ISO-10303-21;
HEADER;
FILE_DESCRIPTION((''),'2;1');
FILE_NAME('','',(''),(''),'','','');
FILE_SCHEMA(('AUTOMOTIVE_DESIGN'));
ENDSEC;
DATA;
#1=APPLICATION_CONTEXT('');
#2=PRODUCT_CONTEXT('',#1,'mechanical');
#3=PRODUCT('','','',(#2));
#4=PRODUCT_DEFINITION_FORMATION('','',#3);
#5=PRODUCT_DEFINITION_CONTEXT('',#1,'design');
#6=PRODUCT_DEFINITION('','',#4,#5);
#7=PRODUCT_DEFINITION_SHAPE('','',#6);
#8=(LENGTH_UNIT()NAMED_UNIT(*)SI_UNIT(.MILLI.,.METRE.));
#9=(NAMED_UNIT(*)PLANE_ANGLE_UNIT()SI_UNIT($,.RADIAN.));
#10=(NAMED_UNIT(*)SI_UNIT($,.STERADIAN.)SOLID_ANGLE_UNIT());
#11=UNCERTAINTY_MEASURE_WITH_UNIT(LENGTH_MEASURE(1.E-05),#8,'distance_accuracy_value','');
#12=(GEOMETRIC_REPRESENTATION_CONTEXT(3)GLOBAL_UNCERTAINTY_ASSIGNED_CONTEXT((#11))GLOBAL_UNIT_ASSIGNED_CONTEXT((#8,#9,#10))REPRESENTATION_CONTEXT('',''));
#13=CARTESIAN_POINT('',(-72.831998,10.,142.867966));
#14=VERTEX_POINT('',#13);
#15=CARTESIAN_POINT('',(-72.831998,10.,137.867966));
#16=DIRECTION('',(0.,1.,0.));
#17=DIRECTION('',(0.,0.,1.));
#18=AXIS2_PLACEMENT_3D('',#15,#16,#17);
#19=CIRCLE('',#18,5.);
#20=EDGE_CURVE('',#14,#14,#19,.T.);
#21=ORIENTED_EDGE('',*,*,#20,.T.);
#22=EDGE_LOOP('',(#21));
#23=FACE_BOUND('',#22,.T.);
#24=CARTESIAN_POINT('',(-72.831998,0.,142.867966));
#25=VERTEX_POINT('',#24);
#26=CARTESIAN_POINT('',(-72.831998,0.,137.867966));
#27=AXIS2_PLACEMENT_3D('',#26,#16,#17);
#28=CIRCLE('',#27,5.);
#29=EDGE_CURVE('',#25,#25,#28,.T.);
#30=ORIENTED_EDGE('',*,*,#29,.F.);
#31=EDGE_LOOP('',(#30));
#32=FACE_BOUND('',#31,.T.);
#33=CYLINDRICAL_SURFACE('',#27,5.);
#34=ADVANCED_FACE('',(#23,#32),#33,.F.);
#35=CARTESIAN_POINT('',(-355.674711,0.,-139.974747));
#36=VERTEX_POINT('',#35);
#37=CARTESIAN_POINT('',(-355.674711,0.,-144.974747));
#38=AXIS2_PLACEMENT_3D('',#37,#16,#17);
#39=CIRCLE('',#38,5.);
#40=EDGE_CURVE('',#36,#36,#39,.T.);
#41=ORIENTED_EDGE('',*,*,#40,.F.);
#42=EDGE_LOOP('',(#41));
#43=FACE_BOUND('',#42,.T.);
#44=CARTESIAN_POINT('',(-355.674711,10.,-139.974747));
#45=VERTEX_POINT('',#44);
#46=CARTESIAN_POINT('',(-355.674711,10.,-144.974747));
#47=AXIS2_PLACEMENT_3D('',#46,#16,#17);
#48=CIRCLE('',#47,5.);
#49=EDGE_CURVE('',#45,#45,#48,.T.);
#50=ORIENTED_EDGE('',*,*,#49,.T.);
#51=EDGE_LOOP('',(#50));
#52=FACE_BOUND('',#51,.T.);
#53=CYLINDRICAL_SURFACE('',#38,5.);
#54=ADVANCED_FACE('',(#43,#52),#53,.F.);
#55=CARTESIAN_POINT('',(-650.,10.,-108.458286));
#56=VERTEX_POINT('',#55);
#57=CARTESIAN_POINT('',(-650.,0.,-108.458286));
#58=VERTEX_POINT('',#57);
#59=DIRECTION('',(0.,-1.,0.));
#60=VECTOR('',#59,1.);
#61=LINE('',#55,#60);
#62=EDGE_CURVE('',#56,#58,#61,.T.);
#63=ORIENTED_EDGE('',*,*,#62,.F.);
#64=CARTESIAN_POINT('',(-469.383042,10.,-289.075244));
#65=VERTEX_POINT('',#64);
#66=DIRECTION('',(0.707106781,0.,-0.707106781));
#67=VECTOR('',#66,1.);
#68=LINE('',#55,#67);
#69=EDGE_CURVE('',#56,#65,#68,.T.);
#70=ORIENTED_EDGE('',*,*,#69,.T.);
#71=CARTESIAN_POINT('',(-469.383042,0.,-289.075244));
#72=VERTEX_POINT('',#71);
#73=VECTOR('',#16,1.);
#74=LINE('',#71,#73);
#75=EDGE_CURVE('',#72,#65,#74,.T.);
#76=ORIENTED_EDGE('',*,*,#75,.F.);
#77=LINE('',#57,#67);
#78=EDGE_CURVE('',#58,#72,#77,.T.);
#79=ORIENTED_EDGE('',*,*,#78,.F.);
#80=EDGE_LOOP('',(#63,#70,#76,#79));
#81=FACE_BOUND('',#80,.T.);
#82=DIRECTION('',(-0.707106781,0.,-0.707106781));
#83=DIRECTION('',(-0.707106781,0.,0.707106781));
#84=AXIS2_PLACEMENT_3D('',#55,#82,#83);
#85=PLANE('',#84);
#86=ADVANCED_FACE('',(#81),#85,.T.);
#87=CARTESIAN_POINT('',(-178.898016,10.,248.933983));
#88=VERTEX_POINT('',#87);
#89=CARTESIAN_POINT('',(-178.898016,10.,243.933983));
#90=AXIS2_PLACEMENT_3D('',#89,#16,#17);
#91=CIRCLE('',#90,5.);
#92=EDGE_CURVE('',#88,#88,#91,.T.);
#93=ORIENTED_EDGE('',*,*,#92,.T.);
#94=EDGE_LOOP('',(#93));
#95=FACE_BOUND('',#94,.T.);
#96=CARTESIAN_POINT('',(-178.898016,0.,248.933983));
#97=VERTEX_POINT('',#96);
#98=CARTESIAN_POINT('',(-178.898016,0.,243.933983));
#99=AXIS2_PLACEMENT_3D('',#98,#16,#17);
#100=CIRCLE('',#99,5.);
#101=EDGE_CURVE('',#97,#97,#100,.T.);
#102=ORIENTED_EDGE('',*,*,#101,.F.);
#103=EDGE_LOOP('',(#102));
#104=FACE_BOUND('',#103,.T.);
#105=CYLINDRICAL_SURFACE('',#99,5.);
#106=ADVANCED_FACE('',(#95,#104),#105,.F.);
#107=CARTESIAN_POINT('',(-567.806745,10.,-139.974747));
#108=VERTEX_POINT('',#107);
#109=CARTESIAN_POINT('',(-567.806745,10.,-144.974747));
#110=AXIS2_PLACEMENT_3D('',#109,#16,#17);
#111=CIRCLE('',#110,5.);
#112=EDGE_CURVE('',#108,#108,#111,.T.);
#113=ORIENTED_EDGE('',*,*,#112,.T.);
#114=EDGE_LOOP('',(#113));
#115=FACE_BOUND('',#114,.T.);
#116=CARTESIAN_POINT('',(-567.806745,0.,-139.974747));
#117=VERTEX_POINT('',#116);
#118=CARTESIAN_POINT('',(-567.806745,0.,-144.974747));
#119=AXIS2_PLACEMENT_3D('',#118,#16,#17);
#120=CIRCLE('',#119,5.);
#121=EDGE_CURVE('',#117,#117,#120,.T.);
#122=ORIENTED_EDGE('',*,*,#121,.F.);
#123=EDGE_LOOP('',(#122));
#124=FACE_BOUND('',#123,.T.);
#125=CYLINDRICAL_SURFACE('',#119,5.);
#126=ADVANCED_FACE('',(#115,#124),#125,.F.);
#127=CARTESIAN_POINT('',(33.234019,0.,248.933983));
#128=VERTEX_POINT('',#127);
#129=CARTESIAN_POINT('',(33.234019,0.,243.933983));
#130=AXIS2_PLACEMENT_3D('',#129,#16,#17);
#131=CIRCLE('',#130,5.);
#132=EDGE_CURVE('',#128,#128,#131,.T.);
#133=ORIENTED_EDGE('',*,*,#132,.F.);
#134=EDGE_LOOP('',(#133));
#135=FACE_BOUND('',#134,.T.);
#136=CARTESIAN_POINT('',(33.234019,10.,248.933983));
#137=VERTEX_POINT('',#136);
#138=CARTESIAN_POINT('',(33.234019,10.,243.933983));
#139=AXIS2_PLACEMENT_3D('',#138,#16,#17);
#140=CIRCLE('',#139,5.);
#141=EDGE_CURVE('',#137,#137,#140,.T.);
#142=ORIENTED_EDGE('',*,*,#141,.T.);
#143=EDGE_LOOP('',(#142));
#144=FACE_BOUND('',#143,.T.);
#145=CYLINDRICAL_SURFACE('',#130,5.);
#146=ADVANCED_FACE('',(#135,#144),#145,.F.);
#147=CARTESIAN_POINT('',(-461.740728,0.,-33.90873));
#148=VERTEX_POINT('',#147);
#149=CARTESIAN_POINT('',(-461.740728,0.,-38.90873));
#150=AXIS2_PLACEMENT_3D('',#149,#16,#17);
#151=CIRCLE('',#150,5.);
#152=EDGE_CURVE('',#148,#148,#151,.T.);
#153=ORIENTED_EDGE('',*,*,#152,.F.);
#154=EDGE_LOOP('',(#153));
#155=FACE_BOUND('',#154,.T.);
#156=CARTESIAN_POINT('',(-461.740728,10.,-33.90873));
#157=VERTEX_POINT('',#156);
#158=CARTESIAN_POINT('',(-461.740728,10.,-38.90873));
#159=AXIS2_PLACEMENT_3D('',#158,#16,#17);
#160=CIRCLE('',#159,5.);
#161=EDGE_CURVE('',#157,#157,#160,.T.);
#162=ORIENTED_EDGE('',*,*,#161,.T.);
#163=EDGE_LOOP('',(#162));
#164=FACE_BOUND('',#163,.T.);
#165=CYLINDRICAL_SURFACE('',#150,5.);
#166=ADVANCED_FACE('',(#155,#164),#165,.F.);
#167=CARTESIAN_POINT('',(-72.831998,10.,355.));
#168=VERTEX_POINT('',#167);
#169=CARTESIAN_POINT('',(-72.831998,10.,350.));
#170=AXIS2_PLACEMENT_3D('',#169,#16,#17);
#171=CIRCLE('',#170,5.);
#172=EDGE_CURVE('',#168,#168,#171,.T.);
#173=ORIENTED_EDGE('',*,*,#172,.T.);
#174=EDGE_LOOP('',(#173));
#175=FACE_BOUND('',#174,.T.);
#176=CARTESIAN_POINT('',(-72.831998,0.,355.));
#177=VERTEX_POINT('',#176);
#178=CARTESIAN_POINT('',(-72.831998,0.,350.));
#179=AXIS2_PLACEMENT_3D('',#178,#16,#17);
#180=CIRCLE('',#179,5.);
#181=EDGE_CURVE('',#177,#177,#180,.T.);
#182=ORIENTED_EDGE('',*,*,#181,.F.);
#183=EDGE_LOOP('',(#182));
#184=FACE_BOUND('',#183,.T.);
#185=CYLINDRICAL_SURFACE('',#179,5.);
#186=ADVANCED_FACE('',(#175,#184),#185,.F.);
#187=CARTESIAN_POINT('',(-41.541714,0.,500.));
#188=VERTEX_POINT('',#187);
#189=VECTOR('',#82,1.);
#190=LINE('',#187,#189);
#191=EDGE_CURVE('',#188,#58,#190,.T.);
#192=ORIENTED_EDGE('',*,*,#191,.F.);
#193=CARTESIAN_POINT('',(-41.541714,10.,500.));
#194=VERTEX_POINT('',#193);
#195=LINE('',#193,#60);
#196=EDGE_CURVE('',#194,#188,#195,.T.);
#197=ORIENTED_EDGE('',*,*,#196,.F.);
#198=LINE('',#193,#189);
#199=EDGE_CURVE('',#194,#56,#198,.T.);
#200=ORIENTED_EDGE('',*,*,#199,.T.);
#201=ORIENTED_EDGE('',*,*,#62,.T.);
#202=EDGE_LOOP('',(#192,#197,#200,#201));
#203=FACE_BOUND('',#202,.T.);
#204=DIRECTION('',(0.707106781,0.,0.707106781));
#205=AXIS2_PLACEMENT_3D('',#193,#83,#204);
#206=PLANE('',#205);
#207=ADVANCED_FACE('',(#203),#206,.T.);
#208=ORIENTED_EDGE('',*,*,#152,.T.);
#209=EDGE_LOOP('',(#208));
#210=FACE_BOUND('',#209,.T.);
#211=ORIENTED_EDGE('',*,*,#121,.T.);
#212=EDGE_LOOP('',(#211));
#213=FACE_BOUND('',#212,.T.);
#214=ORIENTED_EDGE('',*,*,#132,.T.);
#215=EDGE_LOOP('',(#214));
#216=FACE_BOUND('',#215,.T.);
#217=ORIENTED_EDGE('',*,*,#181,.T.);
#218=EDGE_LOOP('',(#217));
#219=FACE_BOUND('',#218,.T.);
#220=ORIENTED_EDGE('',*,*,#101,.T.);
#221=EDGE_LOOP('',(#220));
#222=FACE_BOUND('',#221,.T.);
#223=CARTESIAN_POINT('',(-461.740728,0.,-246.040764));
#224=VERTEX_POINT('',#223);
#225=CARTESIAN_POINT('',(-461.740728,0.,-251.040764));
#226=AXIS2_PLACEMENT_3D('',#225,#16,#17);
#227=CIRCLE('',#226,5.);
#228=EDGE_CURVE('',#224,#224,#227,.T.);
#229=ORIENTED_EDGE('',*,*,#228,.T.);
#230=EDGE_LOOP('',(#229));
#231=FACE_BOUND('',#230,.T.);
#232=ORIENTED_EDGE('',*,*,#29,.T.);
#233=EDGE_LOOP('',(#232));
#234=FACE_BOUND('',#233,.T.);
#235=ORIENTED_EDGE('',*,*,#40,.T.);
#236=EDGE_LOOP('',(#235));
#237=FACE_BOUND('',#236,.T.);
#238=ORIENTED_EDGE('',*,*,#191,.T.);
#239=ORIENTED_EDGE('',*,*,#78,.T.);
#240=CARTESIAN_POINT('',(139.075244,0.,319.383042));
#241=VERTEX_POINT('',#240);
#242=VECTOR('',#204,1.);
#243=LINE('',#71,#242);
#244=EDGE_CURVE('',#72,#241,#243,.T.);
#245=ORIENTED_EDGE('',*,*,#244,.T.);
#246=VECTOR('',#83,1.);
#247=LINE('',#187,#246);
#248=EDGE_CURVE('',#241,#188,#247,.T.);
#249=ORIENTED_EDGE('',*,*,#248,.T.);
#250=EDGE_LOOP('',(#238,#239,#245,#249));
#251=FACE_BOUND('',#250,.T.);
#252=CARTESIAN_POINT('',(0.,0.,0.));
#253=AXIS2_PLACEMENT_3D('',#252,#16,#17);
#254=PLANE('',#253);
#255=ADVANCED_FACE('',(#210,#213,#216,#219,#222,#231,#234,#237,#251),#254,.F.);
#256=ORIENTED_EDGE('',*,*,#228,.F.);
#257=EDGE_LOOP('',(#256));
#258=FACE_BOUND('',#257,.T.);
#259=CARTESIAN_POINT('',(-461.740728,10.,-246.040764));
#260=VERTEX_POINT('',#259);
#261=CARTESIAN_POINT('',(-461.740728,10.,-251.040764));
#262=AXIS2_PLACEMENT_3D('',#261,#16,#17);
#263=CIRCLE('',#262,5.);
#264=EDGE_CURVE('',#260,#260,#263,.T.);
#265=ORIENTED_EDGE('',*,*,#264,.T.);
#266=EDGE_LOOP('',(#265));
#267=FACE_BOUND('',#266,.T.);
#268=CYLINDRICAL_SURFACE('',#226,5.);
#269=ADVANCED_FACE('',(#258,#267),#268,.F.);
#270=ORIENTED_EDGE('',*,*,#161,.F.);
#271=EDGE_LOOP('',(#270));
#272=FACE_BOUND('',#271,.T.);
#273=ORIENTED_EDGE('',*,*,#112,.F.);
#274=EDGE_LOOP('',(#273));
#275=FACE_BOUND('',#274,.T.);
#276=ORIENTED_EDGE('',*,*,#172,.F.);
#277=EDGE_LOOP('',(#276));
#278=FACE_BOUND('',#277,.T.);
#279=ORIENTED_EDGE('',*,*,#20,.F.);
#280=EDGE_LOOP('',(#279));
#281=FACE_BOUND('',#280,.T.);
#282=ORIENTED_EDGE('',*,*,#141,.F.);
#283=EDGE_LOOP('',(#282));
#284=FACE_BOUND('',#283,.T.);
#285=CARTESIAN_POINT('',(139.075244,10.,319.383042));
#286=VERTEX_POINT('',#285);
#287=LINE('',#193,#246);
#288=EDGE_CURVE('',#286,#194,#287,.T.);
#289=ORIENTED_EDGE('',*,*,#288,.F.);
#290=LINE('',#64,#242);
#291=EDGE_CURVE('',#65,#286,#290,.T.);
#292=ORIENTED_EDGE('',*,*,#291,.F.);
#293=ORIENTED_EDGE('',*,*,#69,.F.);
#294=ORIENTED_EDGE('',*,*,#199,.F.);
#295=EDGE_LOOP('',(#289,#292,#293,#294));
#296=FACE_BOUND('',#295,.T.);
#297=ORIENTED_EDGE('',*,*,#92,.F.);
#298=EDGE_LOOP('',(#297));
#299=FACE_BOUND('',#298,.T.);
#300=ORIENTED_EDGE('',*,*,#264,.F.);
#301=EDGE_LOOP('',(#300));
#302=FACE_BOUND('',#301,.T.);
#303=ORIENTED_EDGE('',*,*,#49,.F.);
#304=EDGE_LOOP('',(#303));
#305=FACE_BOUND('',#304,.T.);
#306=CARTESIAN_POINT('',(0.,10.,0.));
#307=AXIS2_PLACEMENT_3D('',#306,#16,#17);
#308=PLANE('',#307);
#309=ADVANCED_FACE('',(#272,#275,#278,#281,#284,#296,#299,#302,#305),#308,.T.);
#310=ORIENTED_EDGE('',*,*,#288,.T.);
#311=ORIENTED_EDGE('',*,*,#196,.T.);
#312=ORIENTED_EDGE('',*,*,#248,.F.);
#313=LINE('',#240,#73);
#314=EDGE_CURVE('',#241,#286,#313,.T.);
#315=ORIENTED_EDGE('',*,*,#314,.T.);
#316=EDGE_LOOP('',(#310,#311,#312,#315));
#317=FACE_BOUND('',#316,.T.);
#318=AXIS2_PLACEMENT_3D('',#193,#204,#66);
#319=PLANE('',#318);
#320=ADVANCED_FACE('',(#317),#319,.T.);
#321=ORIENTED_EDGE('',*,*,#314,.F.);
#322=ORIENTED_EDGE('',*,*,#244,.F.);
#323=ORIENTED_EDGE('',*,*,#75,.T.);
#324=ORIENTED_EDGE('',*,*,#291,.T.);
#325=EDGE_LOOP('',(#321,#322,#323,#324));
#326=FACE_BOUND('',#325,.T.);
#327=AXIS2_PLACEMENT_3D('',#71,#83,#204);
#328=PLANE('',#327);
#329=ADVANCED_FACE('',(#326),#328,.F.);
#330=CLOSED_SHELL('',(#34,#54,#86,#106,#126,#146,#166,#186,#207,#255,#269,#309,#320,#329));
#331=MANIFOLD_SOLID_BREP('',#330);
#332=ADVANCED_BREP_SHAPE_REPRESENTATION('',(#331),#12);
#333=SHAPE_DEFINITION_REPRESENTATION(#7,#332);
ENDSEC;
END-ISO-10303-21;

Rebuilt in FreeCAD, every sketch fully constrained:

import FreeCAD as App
import Part
import Sketcher

V = App.Vector
Q = App.Units.Quantity

doc = App.newDocument("Part")
body = doc.addObject("PartDesign::Body", "Body")

sketch1 = doc.addObject("Sketcher::SketchObject", "Sketch")
body.addObject(sketch1)
sketch1.AttachmentSupport = (doc.XZ_Plane, [""])
sketch1.MapMode = "FlatFace"
sketch1.addGeometry([
    Part.LineSegment(V(-650, -500, 0), V(-650, 500, 0)),
    Part.LineSegment(V(-650, 500, 0), V(650, 500, 0)),
    Part.LineSegment(V(650, 500, 0), V(650, -500, 0)),
    Part.LineSegment(V(650, -500, 0), V(-650, -500, 0)),
], False)
sketch1.addConstraint([
    Sketcher.Constraint("Coincident", 0, 2, 1, 1),
    Sketcher.Constraint("Coincident", 1, 2, 2, 1),
    Sketcher.Constraint("Coincident", 2, 2, 3, 1),
    Sketcher.Constraint("Coincident", 3, 2, 0, 1),
    Sketcher.Constraint("Vertical", 0),
    Sketcher.Constraint("Horizontal", 1),
    Sketcher.Constraint("Vertical", 2),
    Sketcher.Constraint("Horizontal", 3),
    Sketcher.Constraint("Symmetric", 0, 2, 2, 2, -1, 1),
    Sketcher.Constraint("DistanceX", 1, 1, 1, 2, 1300.0),
    Sketcher.Constraint("DistanceY", 0, 1, 0, 2, 1000.0),
])
pad1 = doc.addObject("PartDesign::Pad", "Pad")
body.addObject(pad1)
pad1.Profile = sketch1
pad1.Length = 10
pad1.Reversed = True

sketch2 = doc.addObject("Sketcher::SketchObject", "Sketch001")
body.addObject(sketch2)
sketch2.AttachmentSupport = (doc.XZ_Plane, [""])
sketch2.MapMode = "FlatFace"
sketch2.AttachmentOffset = App.Placement(V(0, 0, -10), App.Rotation())
sketch2.addGeometry([
    Part.Circle(V(-72.831998, 137.867966, 0), V(0, 0, 1), 5),
    Part.Circle(V(33.234019, 243.933983, 0), V(0, 0, 1), 5),
    Part.Circle(V(-72.831998, 350, 0), V(0, 0, 1), 5),
    Part.Circle(V(-178.898016, 243.933983, 0), V(0, 0, 1), 5),
    Part.Circle(V(-461.740728, -251.040764, 0), V(0, 0, 1), 5),
    Part.Circle(V(-355.674711, -144.974747, 0), V(0, 0, 1), 5),
    Part.Circle(V(-461.740728, -38.90873, 0), V(0, 0, 1), 5),
    Part.Circle(V(-567.806745, -144.974747, 0), V(0, 0, 1), 5),
], False)
sketch2.addConstraint([
    Sketcher.Constraint("Equal", 0, 1),
    Sketcher.Constraint("Equal", 1, 2),
    Sketcher.Constraint("Equal", 2, 3),
    Sketcher.Constraint("Equal", 3, 4),
    Sketcher.Constraint("Equal", 4, 5),
    Sketcher.Constraint("Equal", 5, 6),
    Sketcher.Constraint("Equal", 6, 7),
    Sketcher.Constraint("Horizontal", 1, 3, 3, 3),
    Sketcher.Constraint("Horizontal", 5, 3, 7, 3),
    Sketcher.Constraint("Vertical", 0, 3, 2, 3),
    Sketcher.Constraint("Vertical", 4, 3, 6, 3),
    Sketcher.Constraint("Diameter", 0, 10.0),
    Sketcher.Constraint("DistanceY", -1, 1, 2, 3, 350.0),
    Sketcher.Constraint("DistanceX", 0, 3, -1, 1, 72.831998),
    Sketcher.Constraint("DistanceX", -1, 1, 1, 3, 33.234019),
    Sketcher.Constraint("DistanceX", 4, 3, -1, 1, 461.740728),
    Sketcher.Constraint("DistanceX", 5, 3, -1, 1, 355.674711),
    Sketcher.Constraint("DistanceY", 6, 3, -1, 1, 38.90873),
    Sketcher.Constraint("DistanceY", 4, 3, 0, 3, 388.90873),
    Sketcher.Constraint("DistanceY", 5, 3, 3, 3, 388.90873),
    Sketcher.Constraint("DistanceX", 7, 3, 3, 3, 388.90873),
    Sketcher.Constraint("DistanceY", -1, 1, 0, 3, 137.867966),
    Sketcher.Constraint("DistanceY", -1, 1, 1, 3, 243.933983),
    Sketcher.Constraint("DistanceX", 3, 3, -1, 1, 178.898016),
])
pocket1 = doc.addObject("PartDesign::Pocket", "Pocket")
body.addObject(pocket1)
pocket1.Profile = sketch2
pocket1.Type = "ThroughAll"
pocket1.Reversed = True

sketch3 = doc.addObject("Sketcher::SketchObject", "Sketch002")
body.addObject(sketch3)
sketch3.AttachmentSupport = (doc.XZ_Plane, [""])
sketch3.MapMode = "FlatFace"
sketch3.addGeometry([
    Part.LineSegment(V(-500, -500, 0), V(500, 500, 0)),
    Part.LineSegment(V(500, 500, 0), V(650, 500, 0)),
    Part.LineSegment(V(650, 500, 0), V(650, -500, 0)),
    Part.LineSegment(V(650, -500, 0), V(-500, -500, 0)),
    Part.LineSegment(V(-41.541714, 500, 0), V(-650, -108.458286, 0)),
    Part.LineSegment(V(-650, -108.458286, 0), V(-650, 500, 0)),
    Part.LineSegment(V(-650, 500, 0), V(-41.541714, 500, 0)),
], False)
sketch3.addConstraint([
    Sketcher.Constraint("Coincident", 0, 2, 1, 1),
    Sketcher.Constraint("Coincident", 1, 2, 2, 1),
    Sketcher.Constraint("Coincident", 2, 2, 3, 1),
    Sketcher.Constraint("Coincident", 3, 2, 0, 1),
    Sketcher.Constraint("Coincident", 4, 2, 5, 1),
    Sketcher.Constraint("Coincident", 5, 2, 6, 1),
    Sketcher.Constraint("Coincident", 6, 2, 4, 1),
    Sketcher.Constraint("Horizontal", 1),
    Sketcher.Constraint("Vertical", 2),
    Sketcher.Constraint("Horizontal", 3),
    Sketcher.Constraint("Vertical", 5),
    Sketcher.Constraint("Horizontal", 6),
    Sketcher.Constraint("Symmetric", 0, 2, 3, 2, -1, 1),
    Sketcher.Constraint("Symmetric", 2, 2, 5, 2, -1, 1),
    Sketcher.Constraint("Parallel", 0, 4),
    Sketcher.Constraint("Equal", 6, 5),
    Sketcher.Constraint("DistanceX", 1, 1, 1, 2, 150.0),
    Sketcher.Constraint("DistanceX", 3, 2, 3, 1, 1150.0),
    Sketcher.Constraint("Distance", 4, 860.48996),
])
pocket2 = doc.addObject("PartDesign::Pocket", "Pocket001")
body.addObject(pocket2)
pocket2.Profile = sketch3
pocket2.Length = 10

sketch4 = doc.addObject("Sketcher::SketchObject", "Sketch003")
body.addObject(sketch4)
sketch4.AttachmentSupport = (doc.XZ_Plane, [""])
sketch4.MapMode = "FlatFace"
sketch4.addGeometry([
    Part.LineSegment(V(-650, -108.458286, 0), V(-379.229143, -379.229143, 0)),
    Part.LineSegment(V(-379.229143, -379.229143, 0), V(-500, -500, 0)),
    Part.LineSegment(V(-500, -500, 0), V(-650, -500, 0)),
    Part.LineSegment(V(-650, -500, 0), V(-650, -108.458286, 0)),
    Part.LineSegment(V(229.229143, 229.229143, 0), V(-41.541714, 500, 0)),
    Part.LineSegment(V(-41.541714, 500, 0), V(500, 500, 0)),
    Part.LineSegment(V(500, 500, 0), V(229.229143, 229.229143, 0)),
], False)
sketch4.addConstraint([
    Sketcher.Constraint("Coincident", 0, 2, 1, 1),
    Sketcher.Constraint("Coincident", 1, 2, 2, 1),
    Sketcher.Constraint("Coincident", 2, 2, 3, 1),
    Sketcher.Constraint("Coincident", 3, 2, 0, 1),
    Sketcher.Constraint("Coincident", 4, 2, 5, 1),
    Sketcher.Constraint("Coincident", 5, 2, 6, 1),
    Sketcher.Constraint("Coincident", 6, 2, 4, 1),
    Sketcher.Constraint("Horizontal", 2),
    Sketcher.Constraint("Vertical", 3),
    Sketcher.Constraint("Horizontal", 5),
    Sketcher.Constraint("Symmetric", 1, 2, 5, 2, -1, 1),
    Sketcher.Constraint("Perpendicular", 0, 1),
    Sketcher.Constraint("Perpendicular", 1, 4),
    Sketcher.Constraint("Perpendicular", 4, 6),
    Sketcher.Constraint("Equal", 0, 4),
    Sketcher.Constraint("Equal", 4, 6),
    Sketcher.Constraint("DistanceX", 2, 2, 2, 1, 150.0),
    Sketcher.Constraint("DistanceX", 1, 2, -1, 1, 500.0),
    Sketcher.Constraint("DistanceY", 1, 2, -1, 1, 500.0),
    Sketcher.Constraint("Distance", 0, 382.927818),
])
pocket3 = doc.addObject("PartDesign::Pocket", "Pocket002")
body.addObject(pocket3)
pocket3.Profile = sketch4
pocket3.Length = 10

sketch5 = doc.addObject("Sketcher::SketchObject", "Sketch004")
body.addObject(sketch5)
sketch5.AttachmentSupport = (doc.XZ_Plane, [""])
sketch5.MapMode = "FlatFace"
sketch5.AttachmentOffset = App.Placement(V(0, 0, -10), App.Rotation())
sketch5.addGeometry([
    Part.LineSegment(V(-379.229143, -379.229143, 0), V(-469.383042, -289.075244, 0)),
    Part.LineSegment(V(-469.383042, -289.075244, 0), V(139.075244, 319.383042, 0)),
    Part.LineSegment(V(139.075244, 319.383042, 0), V(229.229143, 229.229143, 0)),
    Part.LineSegment(V(229.229143, 229.229143, 0), V(-379.229143, -379.229143, 0)),
], False)
sketch5.addConstraint([
    Sketcher.Constraint("Coincident", 0, 2, 1, 1),
    Sketcher.Constraint("Coincident", 1, 2, 2, 1),
    Sketcher.Constraint("Coincident", 2, 2, 3, 1),
    Sketcher.Constraint("Coincident", 3, 2, 0, 1),
    Sketcher.Constraint("Perpendicular", 0, 1),
    Sketcher.Constraint("Perpendicular", 1, 2),
    Sketcher.Constraint("Perpendicular", 2, 3),
    Sketcher.Constraint("Angle", 0, Q("135 deg")),
    Sketcher.Constraint("DistanceX", 1, 2, 2, 2, 90.153899),
    Sketcher.Constraint("Distance", 1, 860.48996),
    Sketcher.Constraint("DistanceX", 0, 2, -1, 1, 469.383042),
    Sketcher.Constraint("DistanceY", -1, 1, 1, 2, 319.383042),
])
pocket4 = doc.addObject("PartDesign::Pocket", "Pocket003")
body.addObject(pocket4)
pocket4.Profile = sketch5
pocket4.Type = "ThroughAll"
pocket4.Reversed = True

doc.recompute()
